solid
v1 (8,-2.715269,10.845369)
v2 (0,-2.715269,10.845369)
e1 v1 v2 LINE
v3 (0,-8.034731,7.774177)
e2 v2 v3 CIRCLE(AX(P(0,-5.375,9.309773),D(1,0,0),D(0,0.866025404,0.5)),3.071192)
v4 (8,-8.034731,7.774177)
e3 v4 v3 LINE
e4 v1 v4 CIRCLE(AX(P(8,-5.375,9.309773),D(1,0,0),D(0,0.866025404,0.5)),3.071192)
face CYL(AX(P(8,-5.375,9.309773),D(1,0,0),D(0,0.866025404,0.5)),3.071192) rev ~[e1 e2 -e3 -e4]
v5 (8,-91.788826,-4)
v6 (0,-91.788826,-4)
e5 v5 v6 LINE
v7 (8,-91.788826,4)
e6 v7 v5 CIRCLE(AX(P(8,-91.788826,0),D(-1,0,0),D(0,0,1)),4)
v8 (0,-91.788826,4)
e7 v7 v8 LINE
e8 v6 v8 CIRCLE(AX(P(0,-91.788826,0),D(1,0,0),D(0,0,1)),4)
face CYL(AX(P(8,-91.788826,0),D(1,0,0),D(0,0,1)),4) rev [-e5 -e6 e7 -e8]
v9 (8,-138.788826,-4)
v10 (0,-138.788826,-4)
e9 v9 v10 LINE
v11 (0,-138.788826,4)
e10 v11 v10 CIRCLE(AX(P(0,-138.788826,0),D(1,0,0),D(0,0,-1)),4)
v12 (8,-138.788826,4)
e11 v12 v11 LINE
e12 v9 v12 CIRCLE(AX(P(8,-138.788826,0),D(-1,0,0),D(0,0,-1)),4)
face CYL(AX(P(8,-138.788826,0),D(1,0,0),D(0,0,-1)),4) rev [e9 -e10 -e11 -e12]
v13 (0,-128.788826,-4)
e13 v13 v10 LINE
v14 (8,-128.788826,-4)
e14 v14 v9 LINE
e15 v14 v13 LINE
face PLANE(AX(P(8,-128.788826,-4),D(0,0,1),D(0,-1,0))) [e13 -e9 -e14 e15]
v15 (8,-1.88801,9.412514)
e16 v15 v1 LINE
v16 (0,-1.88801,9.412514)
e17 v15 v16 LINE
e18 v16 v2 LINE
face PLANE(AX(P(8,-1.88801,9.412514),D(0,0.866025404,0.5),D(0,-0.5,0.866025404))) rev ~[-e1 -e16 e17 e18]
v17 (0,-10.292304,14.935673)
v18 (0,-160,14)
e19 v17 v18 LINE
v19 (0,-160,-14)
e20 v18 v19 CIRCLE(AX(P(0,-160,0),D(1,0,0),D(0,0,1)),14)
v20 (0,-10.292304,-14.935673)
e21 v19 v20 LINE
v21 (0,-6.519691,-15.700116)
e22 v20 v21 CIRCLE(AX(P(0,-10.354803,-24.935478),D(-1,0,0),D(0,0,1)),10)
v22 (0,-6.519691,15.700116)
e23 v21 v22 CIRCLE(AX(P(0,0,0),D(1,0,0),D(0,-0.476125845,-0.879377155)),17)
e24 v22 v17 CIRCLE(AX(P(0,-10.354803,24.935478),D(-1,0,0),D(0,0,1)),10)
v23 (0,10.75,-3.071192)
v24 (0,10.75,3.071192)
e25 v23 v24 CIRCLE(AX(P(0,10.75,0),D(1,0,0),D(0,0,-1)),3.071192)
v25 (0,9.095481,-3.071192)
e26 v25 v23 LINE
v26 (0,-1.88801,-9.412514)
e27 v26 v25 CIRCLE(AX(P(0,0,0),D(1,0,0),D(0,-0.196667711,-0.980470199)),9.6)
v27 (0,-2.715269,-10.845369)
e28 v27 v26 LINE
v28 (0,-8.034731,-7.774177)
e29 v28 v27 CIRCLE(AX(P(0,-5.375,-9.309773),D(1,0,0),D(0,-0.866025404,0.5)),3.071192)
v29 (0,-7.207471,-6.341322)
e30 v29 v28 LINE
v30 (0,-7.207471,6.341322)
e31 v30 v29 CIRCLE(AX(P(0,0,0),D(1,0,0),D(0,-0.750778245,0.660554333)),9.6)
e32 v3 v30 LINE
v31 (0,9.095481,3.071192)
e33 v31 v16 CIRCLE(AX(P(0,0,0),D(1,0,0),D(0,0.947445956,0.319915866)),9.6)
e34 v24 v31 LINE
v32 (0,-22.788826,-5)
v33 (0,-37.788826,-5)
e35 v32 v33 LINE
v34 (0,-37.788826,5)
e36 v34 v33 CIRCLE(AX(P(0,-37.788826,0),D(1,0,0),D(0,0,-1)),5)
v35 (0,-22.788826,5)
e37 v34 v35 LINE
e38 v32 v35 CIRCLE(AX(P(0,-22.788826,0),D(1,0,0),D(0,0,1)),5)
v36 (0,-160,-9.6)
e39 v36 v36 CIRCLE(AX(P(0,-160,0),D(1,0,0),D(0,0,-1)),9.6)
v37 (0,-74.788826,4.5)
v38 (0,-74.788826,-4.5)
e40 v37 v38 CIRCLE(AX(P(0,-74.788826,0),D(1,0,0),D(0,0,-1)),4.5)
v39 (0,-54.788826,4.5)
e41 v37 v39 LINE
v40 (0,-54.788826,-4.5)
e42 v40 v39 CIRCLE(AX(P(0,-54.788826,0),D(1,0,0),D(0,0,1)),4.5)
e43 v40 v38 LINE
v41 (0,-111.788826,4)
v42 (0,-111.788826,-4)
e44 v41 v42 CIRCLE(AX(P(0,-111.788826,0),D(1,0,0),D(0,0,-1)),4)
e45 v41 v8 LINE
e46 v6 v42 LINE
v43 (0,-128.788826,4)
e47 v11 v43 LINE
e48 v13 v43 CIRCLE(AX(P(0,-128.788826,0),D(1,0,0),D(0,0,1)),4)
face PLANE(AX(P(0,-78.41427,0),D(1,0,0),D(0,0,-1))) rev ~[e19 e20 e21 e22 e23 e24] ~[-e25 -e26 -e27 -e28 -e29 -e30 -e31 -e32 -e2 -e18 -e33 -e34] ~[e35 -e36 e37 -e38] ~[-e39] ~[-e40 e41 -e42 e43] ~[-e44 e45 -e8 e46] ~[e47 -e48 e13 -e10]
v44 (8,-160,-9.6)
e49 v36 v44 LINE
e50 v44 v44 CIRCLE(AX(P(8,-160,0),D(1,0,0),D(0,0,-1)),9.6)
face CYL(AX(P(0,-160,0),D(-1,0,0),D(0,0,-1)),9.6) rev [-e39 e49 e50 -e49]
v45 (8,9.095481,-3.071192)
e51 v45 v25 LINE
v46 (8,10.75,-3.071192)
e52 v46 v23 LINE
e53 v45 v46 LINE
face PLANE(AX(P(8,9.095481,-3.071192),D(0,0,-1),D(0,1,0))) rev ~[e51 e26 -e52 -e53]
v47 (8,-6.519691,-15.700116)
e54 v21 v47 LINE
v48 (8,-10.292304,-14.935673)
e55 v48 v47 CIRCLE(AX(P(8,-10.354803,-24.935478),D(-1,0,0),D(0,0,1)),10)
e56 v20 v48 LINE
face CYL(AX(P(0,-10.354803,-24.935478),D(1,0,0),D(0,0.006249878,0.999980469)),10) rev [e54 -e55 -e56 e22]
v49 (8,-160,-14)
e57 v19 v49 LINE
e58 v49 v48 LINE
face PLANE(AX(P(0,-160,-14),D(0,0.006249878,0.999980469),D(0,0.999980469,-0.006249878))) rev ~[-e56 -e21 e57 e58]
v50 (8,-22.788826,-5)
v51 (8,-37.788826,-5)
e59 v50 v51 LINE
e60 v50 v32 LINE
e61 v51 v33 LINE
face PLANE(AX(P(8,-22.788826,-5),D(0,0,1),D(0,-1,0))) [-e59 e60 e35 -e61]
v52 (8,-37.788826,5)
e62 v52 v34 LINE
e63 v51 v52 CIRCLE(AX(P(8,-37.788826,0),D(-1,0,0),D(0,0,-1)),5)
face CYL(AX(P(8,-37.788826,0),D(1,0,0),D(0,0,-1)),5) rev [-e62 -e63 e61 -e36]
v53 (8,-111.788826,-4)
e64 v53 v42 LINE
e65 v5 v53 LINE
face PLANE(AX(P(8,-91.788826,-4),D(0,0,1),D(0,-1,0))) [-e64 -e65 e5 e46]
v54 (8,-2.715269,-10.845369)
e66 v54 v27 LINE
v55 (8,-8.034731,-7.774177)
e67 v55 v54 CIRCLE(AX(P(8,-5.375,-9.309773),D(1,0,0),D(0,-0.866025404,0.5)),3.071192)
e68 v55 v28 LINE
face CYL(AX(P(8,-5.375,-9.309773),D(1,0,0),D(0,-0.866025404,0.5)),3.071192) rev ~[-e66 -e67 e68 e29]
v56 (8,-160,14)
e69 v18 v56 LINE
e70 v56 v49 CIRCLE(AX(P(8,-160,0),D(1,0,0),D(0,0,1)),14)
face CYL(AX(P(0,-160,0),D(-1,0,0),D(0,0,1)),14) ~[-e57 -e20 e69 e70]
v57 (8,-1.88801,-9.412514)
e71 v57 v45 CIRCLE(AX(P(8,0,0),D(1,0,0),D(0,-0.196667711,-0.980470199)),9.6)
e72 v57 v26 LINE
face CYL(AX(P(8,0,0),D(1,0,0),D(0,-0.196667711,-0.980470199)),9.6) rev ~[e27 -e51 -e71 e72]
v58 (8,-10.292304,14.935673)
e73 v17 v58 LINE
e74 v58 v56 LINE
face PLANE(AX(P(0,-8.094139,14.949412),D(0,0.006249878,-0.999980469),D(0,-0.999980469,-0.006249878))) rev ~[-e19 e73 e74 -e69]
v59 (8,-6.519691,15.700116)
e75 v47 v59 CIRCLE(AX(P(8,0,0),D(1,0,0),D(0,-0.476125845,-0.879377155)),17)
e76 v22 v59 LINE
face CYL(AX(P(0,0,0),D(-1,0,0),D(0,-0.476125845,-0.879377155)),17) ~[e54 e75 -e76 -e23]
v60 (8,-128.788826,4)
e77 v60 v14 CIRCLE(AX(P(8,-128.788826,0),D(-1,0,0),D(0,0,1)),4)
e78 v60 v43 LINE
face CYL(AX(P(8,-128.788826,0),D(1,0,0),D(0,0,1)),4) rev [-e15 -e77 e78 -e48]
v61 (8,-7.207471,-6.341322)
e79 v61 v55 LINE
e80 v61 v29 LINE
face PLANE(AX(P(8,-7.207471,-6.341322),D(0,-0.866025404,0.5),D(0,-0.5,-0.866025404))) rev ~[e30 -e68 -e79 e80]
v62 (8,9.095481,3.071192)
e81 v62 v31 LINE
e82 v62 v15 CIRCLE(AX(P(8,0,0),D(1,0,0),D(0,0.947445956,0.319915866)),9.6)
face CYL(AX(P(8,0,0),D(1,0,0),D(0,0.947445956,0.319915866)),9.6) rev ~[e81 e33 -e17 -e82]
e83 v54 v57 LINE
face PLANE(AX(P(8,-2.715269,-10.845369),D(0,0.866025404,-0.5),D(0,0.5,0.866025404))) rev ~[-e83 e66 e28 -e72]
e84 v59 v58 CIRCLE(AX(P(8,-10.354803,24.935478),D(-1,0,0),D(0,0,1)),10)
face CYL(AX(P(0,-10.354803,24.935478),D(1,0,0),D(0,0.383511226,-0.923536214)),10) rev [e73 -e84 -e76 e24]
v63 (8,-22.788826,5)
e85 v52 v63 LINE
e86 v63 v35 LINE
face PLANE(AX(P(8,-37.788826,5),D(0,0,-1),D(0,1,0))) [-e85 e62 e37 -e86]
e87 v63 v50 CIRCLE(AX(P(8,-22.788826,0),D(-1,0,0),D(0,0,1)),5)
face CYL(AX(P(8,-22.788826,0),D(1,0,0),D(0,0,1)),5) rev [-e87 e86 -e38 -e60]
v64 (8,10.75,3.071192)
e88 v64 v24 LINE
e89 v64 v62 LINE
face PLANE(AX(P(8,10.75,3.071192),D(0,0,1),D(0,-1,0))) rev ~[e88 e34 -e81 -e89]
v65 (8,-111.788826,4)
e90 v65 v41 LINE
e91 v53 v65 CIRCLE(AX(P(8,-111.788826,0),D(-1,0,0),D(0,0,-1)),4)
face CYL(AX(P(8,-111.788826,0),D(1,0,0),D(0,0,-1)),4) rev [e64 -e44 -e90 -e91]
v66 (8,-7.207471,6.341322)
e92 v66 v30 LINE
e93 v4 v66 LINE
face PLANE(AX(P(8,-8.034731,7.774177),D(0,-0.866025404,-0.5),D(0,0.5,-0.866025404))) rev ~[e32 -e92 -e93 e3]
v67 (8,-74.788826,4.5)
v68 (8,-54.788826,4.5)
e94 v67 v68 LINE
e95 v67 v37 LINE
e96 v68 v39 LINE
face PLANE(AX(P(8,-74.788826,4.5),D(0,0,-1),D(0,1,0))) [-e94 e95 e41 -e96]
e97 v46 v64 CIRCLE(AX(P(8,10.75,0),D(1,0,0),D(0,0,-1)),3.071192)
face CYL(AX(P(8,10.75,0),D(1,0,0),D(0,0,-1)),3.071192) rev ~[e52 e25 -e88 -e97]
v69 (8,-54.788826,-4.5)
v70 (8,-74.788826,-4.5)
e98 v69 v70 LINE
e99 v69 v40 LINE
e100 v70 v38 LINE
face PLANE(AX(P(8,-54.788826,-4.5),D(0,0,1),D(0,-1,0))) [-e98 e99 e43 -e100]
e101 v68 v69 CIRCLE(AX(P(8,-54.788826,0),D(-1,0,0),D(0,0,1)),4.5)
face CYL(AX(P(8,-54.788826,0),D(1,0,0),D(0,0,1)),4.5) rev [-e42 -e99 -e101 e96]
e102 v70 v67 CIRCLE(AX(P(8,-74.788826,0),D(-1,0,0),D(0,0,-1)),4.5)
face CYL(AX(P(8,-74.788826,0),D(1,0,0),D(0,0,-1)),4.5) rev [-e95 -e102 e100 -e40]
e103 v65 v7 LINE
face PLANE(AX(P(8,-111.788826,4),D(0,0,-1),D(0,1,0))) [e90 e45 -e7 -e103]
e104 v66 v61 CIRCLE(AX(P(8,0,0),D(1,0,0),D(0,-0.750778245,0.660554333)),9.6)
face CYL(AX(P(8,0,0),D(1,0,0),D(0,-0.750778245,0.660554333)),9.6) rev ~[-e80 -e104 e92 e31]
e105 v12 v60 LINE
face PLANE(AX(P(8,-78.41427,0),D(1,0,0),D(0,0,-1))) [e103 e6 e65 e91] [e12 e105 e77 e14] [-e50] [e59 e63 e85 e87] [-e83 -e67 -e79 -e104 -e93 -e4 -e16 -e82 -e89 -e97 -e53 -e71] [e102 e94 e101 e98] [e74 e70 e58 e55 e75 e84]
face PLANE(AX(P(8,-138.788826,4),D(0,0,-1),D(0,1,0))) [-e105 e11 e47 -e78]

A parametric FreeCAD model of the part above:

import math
import FreeCAD as App
import Part
import Sketcher
Q = App.Units.Quantity


def edges_at(feature, points):
    """Names of the edges that pass closest to the given points."""
    edges = feature.Shape.Edges
    near = lambda p: min(range(len(edges)), key=lambda i: edges[i].distToShape(Part.Vertex(*p))[0])
    return sorted({f"Edge{near(p) + 1}" for p in points})

doc = App.newDocument("Part")
params = doc.addObject("Spreadsheet::Sheet", "Params")
for row, (alias, value) in enumerate([
    ("sketch1_radius", "17 mm"),
    ("sketch1_radius2", "14 mm"),
    ("sketch1_diameter", "19.2 mm"),
    ("pad1_length", "8 mm"),
    ("sketch2_radius", "5 mm"),
    ("sketch2_radius2", "4 mm"),
    ("sketch2_radius3", "4.5 mm"),
    ("sketch2_width", "15 mm"),
    ("sketch2_width2", "20 mm"),
    ("pocket1_length", "10 mm"),
    ("fillet_radius", "10 mm"),
    ("sketch3_radius", "9.6 mm"),
    ("pocket2_length", "10 mm"),
], start=1):
    params.set(f"A{row}", alias)
    params.set(f"B{row}", "=" + value)
    params.setAlias(f"B{row}", alias)

body = doc.addObject("PartDesign::Body", "Body")

sketch1 = body.newObject("Sketcher::SketchObject", "Sketch")
sketch1.AttachmentSupport = (doc.getObject("YZ_Plane"), [""])
sketch1.MapMode = "FlatFace"
sketch1.addGeometry(Part.LineSegment(App.Vector(-160, -14, 0), App.Vector(-8, -15, 0)), False)
sketch1.addGeometry(Part.ArcOfCircle(Part.Circle(App.Vector(0, 0, 0), App.Vector(0, 0, 1), 17), math.radians(-118), math.radians(118)), False)
sketch1.addGeometry(Part.LineSegment(App.Vector(-8, 15, 0), App.Vector(-160, 14, 0)), False)
sketch1.addGeometry(Part.ArcOfCircle(Part.Circle(App.Vector(-160, 0, 0), App.Vector(0, 0, 1), 14), math.radians(90), math.radians(270)), False)
sketch1.addGeometry(Part.Circle(App.Vector(-160, 0, 0), App.Vector(0, 0, 1), 10), False)
sketch1.addConstraint(Sketcher.Constraint("Coincident", 0, 2, 1, 1))
sketch1.addConstraint(Sketcher.Constraint("Coincident", 1, 2, 2, 1))
sketch1.addConstraint(Sketcher.Constraint("Coincident", 2, 2, 3, 1))
sketch1.addConstraint(Sketcher.Constraint("Coincident", 3, 2, 0, 1))
sketch1.addConstraint(Sketcher.Constraint("Coincident", 1, 3, -1, 1))
sketch1.addConstraint(Sketcher.Constraint("Coincident", 4, 3, 3, 3))
sketch1.addConstraint(Sketcher.Constraint("Symmetric", 2, 2, 3, 2, -1))
sketch1.addConstraint(Sketcher.Constraint("Vertical", 0, 2, 1, 2))
sketch1.addConstraint(Sketcher.Constraint("Vertical", 4, 3, 2, 2))
sketch1.addConstraint(Sketcher.Constraint("Radius", 1, Q("17 mm")))
sketch1.addConstraint(Sketcher.Constraint("Radius", 3, Q("14 mm")))
sketch1.addConstraint(Sketcher.Constraint("Diameter", 4, Q("19.2 mm")))
sketch1.addConstraint(Sketcher.Constraint("DistanceX", 3, 3, -1, 1, Q("160 mm")))
sketch1.addConstraint(Sketcher.Constraint("DistanceX", 0, 2, -1, 1, Q("8.094139 mm")))
sketch1.setExpression("Constraints[9]", "Params.sketch1_radius")
sketch1.setExpression("Constraints[10]", "Params.sketch1_radius2")
sketch1.setExpression("Constraints[11]", "Params.sketch1_diameter")
pad1 = body.newObject("PartDesign::Pad", "Pad")
pad1.Profile = sketch1
pad1.setExpression("Length", "Params.pad1_length")

sketch2 = body.newObject("Sketcher::SketchObject", "Sketch001")
sketch2.AttachmentSupport = (doc.getObject("YZ_Plane"), [""])
sketch2.MapMode = "FlatFace"
sketch2.AttachmentOffset = App.Placement(App.Vector(0, 0, 8), App.Rotation())
sketch2.addGeometry(Part.LineSegment(App.Vector(-37.8, -5, 0), App.Vector(-22.8, -5, 0)), False)
sketch2.addGeometry(Part.ArcOfCircle(Part.Circle(App.Vector(-22.8, 0, 0), App.Vector(0, 0, 1), 5), math.radians(-90), math.radians(90)), False)
sketch2.addGeometry(Part.LineSegment(App.Vector(-22.8, 5, 0), App.Vector(-37.8, 5, 0)), False)
sketch2.addGeometry(Part.ArcOfCircle(Part.Circle(App.Vector(-37.8, 0, 0), App.Vector(0, 0, 1), 5), math.radians(90), math.radians(270)), False)
sketch2.addGeometry(Part.LineSegment(App.Vector(-74.8, -4.5, 0), App.Vector(-54.8, -4.5, 0)), False)
sketch2.addGeometry(Part.ArcOfCircle(Part.Circle(App.Vector(-54.8, 0, 0), App.Vector(0, 0, 1), 4.5), math.radians(-90), math.radians(90)), False)
sketch2.addGeometry(Part.LineSegment(App.Vector(-54.8, 4.5, 0), App.Vector(-74.8, 4.5, 0)), False)
sketch2.addGeometry(Part.ArcOfCircle(Part.Circle(App.Vector(-74.8, 0, 0), App.Vector(0, 0, 1), 4.5), math.radians(90), math.radians(270)), False)
sketch2.addGeometry(Part.LineSegment(App.Vector(-111.8, -4, 0), App.Vector(-91.8, -4, 0)), False)
sketch2.addGeometry(Part.ArcOfCircle(Part.Circle(App.Vector(-91.8, 0, 0), App.Vector(0, 0, 1), 4), math.radians(-90), math.radians(90)), False)
sketch2.addGeometry(Part.LineSegment(App.Vector(-91.8, 4, 0), App.Vector(-111.8, 4, 0)), False)
sketch2.addGeometry(Part.ArcOfCircle(Part.Circle(App.Vector(-111.8, 0, 0), App.Vector(0, 0, 1), 4), math.radians(90), math.radians(270)), False)
sketch2.addGeometry(Part.LineSegment(App.Vector(-138.8, -4, 0), App.Vector(-128.8, -4, 0)), False)
sketch2.addGeometry(Part.ArcOfCircle(Part.Circle(App.Vector(-128.8, 0, 0), App.Vector(0, 0, 1), 4), math.radians(-90), math.radians(90)), False)
sketch2.addGeometry(Part.LineSegment(App.Vector(-128.8, 4, 0), App.Vector(-138.8, 4, 0)), False)
sketch2.addGeometry(Part.ArcOfCircle(Part.Circle(App.Vector(-138.8, 0, 0), App.Vector(0, 0, 1), 4), math.radians(90), math.radians(270)), False)
sketch2.addConstraint(Sketcher.Constraint("Tangent", 0, 2, 1, 1))
sketch2.addConstraint(Sketcher.Constraint("Tangent", 1, 2, 2, 1))
sketch2.addConstraint(Sketcher.Constraint("Tangent", 2, 2, 3, 1))
sketch2.addConstraint(Sketcher.Constraint("Tangent", 3, 2, 0, 1))
sketch2.addConstraint(Sketcher.Constraint("Tangent", 4, 2, 5, 1))
sketch2.addConstraint(Sketcher.Constraint("Tangent", 5, 2, 6, 1))
sketch2.addConstraint(Sketcher.Constraint("Tangent", 6, 2, 7, 1))
sketch2.addConstraint(Sketcher.Constraint("Tangent", 7, 2, 4, 1))
sketch2.addConstraint(Sketcher.Constraint("Tangent", 8, 2, 9, 1))
sketch2.addConstraint(Sketcher.Constraint("Tangent", 9, 2, 10, 1))
sketch2.addConstraint(Sketcher.Constraint("Tangent", 10, 2, 11, 1))
sketch2.addConstraint(Sketcher.Constraint("Tangent", 11, 2, 8, 1))
sketch2.addConstraint(Sketcher.Constraint("Tangent", 12, 2, 13, 1))
sketch2.addConstraint(Sketcher.Constraint("Tangent", 13, 2, 14, 1))
sketch2.addConstraint(Sketcher.Constraint("Tangent", 14, 2, 15, 1))
sketch2.addConstraint(Sketcher.Constraint("Tangent", 15, 2, 12, 1))
sketch2.addConstraint(Sketcher.Constraint("Horizontal", 0))
sketch2.addConstraint(Sketcher.Constraint("Horizontal", 2))
sketch2.addConstraint(Sketcher.Constraint("Horizontal", 4))
sketch2.addConstraint(Sketcher.Constraint("Horizontal", 6))
sketch2.addConstraint(Sketcher.Constraint("Horizontal", 8))
sketch2.addConstraint(Sketcher.Constraint("Horizontal", 10))
sketch2.addConstraint(Sketcher.Constraint("Horizontal", 12))
sketch2.addConstraint(Sketcher.Constraint("Horizontal", 14))
sketch2.addConstraint(Sketcher.Constraint("Equal", 11, 13))
sketch2.addConstraint(Sketcher.Constraint("PointOnObject", 1, 3, -1))
sketch2.addConstraint(Sketcher.Constraint("PointOnObject", 5, 3, -1))
sketch2.addConstraint(Sketcher.Constraint("PointOnObject", 9, 3, -1))
sketch2.addConstraint(Sketcher.Constraint("PointOnObject", 13, 3, -1))
sketch2.addConstraint(Sketcher.Constraint("Equal", 6, 8))
sketch2.addConstraint(Sketcher.Constraint("Radius", 1, Q("5 mm")))
sketch2.addConstraint(Sketcher.Constraint("Radius", 9, Q("4 mm")))
sketch2.addConstraint(Sketcher.Constraint("Radius", 5, Q("4.5 mm")))
sketch2.addConstraint(Sketcher.Constraint("DistanceX", 0, 1, 0, 2, Q("15 mm")))
sketch2.addConstraint(Sketcher.Constraint("DistanceX", 4, 1, 4, 2, Q("20 mm")))
sketch2.addConstraint(Sketcher.Constraint("DistanceX", 12, 1, 12, 2, Q("10 mm")))
sketch2.addConstraint(Sketcher.Constraint("DistanceX", 5, 3, 3, 3, Q("17 mm")))
sketch2.addConstraint(Sketcher.Constraint("DistanceX", 9, 3, 7, 3, Q("17 mm")))
sketch2.addConstraint(Sketcher.Constraint("DistanceX", 13, 3, 11, 3, Q("17 mm")))
sketch2.addConstraint(Sketcher.Constraint("DistanceX", 1, 3, -1, 1, Q("22.788826 mm")))
sketch2.setExpression("Constraints[30]", "Params.sketch2_radius")
sketch2.setExpression("Constraints[31]", "Params.sketch2_radius2")
sketch2.setExpression("Constraints[32]", "Params.sketch2_radius3")
sketch2.setExpression("Constraints[33]", "Params.sketch2_width")
sketch2.setExpression("Constraints[34]", "Params.sketch2_width2")
pocket1 = body.newObject("PartDesign::Pocket", "Pocket")
pocket1.Profile = sketch2
pocket1.setExpression("Length", "Params.pocket1_length")
doc.recompute()

fillet = body.newObject("PartDesign::Fillet", "Fillet")
fillet.Base = (pocket1, edges_at(pocket1, [(4, -8.094, 14.949), (4, -8.094, -14.949)]))
fillet.setExpression("Radius", "Params.fillet_radius")

sketch3 = body.newObject("Sketcher::SketchObject", "Sketch002")
sketch3.AttachmentSupport = (doc.getObject("YZ_Plane"), [""])
sketch3.MapMode = "FlatFace"
sketch3.AttachmentOffset = App.Placement(App.Vector(0, 0, 8), App.Rotation())
sketch3.addGeometry(Part.LineSegment(App.Vector(10.8, 3.1, 0), App.Vector(9.1, 3.1, 0)), False)
sketch3.addGeometry(Part.ArcOfCircle(Part.Circle(App.Vector(0, 0, 0), App.Vector(0, 0, 1), 9.6), math.radians(19), math.radians(101)), False)
sketch3.addGeometry(Part.LineSegment(App.Vector(-1.9, 9.4, 0), App.Vector(-2.7, 10.8, 0)), False)
sketch3.addGeometry(Part.ArcOfCircle(Part.Circle(App.Vector(-5.4, 9.3, 0), App.Vector(0, 0, 1), 3.1), math.radians(30), math.radians(210)), False)
sketch3.addGeometry(Part.LineSegment(App.Vector(-8, 7.8, 0), App.Vector(-7.2, 6.3, 0)), False)
sketch3.addGeometry(Part.ArcOfCircle(Part.Circle(App.Vector(0, 0, 0), App.Vector(0, 0, 1), 9.6), math.radians(139), math.radians(221)), False)
sketch3.addGeometry(Part.LineSegment(App.Vector(-7.2, -6.3, 0), App.Vector(-8, -7.8, 0)), False)
sketch3.addGeometry(Part.ArcOfCircle(Part.Circle(App.Vector(-5.4, -9.3, 0), App.Vector(0, 0, 1), 3.1), math.radians(150), math.radians(330)), False)
sketch3.addGeometry(Part.LineSegment(App.Vector(-2.7, -10.8, 0), App.Vector(-1.9, -9.4, 0)), False)
sketch3.addGeometry(Part.ArcOfCircle(Part.Circle(App.Vector(0, 0, 0), App.Vector(0, 0, 1), 9.6), math.radians(-101), math.radians(-19)), False)
sketch3.addGeometry(Part.LineSegment(App.Vector(9.1, -3.1, 0), App.Vector(10.8, -3.1, 0)), False)
sketch3.addGeometry(Part.ArcOfCircle(Part.Circle(App.Vector(10.8, 0, 0), App.Vector(0, 0, 1), 3.1), math.radians(-90), math.radians(90)), False)
sketch3.addConstraint(Sketcher.Constraint("Coincident", 0, 2, 1, 1))
sketch3.addConstraint(Sketcher.Constraint("Coincident", 1, 2, 2, 1))
sketch3.addConstraint(Sketcher.Constraint("Tangent", 2, 2, 3, 1))
sketch3.addConstraint(Sketcher.Constraint("Tangent", 3, 2, 4, 1))
sketch3.addConstraint(Sketcher.Constraint("Coincident", 4, 2, 5, 1))
sketch3.addConstraint(Sketcher.Constraint("Coincident", 5, 2, 6, 1))
sketch3.addConstraint(Sketcher.Constraint("Tangent", 6, 2, 7, 1))
sketch3.addConstraint(Sketcher.Constraint("Tangent", 7, 2, 8, 1))
sketch3.addConstraint(Sketcher.Constraint("Coincident", 8, 2, 9, 1))
sketch3.addConstraint(Sketcher.Constraint("Coincident", 9, 2, 10, 1))
sketch3.addConstraint(Sketcher.Constraint("Tangent", 10, 2, 11, 1))
sketch3.addConstraint(Sketcher.Constraint("Tangent", 11, 2, 0, 1))
sketch3.addConstraint(Sketcher.Constraint("Horizontal", 0))
sketch3.addConstraint(Sketcher.Constraint("Horizontal", 10))
sketch3.addConstraint(Sketcher.Constraint("Coincident", 1, 3, -1, 1))
sketch3.addConstraint(Sketcher.Constraint("Coincident", 5, 3, -1, 1))
sketch3.addConstraint(Sketcher.Constraint("Coincident", 9, 3, -1, 1))
sketch3.addConstraint(Sketcher.Constraint("Equal", 1, 5))
sketch3.addConstraint(Sketcher.Constraint("Equal", 3, 7))
sketch3.addConstraint(Sketcher.Constraint("Equal", 5, 9))
sketch3.addConstraint(Sketcher.Constraint("Equal", 7, 11))
sketch3.addConstraint(Sketcher.Constraint("Symmetric", 3, 3, 7, 3, -1))
sketch3.addConstraint(Sketcher.Constraint("PointOnObject", 11, 3, -1))
sketch3.addConstraint(Sketcher.Constraint("Parallel", 2, 4))
sketch3.addConstraint(Sketcher.Constraint("Parallel", 6, 8))
sketch3.addConstraint(Sketcher.Constraint("Vertical", 4, 2, 5, 2))
sketch3.addConstraint(Sketcher.Constraint("Equal", 2, 4))
sketch3.addConstraint(Sketcher.Constraint("Radius", 1, Q("9.6 mm")))
sketch3.addConstraint(Sketcher.Constraint("Angle", 2, Q("120 deg")))
sketch3.addConstraint(Sketcher.Constraint("DistanceX", -1, 1, 11, 3, Q("10.75 mm")))
sketch3.addConstraint(Sketcher.Constraint("DistanceX", 3, 3, -1, 1, Q("5.375 mm")))
sketch3.addConstraint(Sketcher.Constraint("Radius", 3, Q("3.071192 mm")))
sketch3.setExpression("Constraints[27]", "Params.sketch3_radius")
pocket2 = body.newObject("PartDesign::Pocket", "Pocket001")
pocket2.Profile = sketch3
pocket2.setExpression("Length", "Params.pocket2_length")

doc.recompute()
